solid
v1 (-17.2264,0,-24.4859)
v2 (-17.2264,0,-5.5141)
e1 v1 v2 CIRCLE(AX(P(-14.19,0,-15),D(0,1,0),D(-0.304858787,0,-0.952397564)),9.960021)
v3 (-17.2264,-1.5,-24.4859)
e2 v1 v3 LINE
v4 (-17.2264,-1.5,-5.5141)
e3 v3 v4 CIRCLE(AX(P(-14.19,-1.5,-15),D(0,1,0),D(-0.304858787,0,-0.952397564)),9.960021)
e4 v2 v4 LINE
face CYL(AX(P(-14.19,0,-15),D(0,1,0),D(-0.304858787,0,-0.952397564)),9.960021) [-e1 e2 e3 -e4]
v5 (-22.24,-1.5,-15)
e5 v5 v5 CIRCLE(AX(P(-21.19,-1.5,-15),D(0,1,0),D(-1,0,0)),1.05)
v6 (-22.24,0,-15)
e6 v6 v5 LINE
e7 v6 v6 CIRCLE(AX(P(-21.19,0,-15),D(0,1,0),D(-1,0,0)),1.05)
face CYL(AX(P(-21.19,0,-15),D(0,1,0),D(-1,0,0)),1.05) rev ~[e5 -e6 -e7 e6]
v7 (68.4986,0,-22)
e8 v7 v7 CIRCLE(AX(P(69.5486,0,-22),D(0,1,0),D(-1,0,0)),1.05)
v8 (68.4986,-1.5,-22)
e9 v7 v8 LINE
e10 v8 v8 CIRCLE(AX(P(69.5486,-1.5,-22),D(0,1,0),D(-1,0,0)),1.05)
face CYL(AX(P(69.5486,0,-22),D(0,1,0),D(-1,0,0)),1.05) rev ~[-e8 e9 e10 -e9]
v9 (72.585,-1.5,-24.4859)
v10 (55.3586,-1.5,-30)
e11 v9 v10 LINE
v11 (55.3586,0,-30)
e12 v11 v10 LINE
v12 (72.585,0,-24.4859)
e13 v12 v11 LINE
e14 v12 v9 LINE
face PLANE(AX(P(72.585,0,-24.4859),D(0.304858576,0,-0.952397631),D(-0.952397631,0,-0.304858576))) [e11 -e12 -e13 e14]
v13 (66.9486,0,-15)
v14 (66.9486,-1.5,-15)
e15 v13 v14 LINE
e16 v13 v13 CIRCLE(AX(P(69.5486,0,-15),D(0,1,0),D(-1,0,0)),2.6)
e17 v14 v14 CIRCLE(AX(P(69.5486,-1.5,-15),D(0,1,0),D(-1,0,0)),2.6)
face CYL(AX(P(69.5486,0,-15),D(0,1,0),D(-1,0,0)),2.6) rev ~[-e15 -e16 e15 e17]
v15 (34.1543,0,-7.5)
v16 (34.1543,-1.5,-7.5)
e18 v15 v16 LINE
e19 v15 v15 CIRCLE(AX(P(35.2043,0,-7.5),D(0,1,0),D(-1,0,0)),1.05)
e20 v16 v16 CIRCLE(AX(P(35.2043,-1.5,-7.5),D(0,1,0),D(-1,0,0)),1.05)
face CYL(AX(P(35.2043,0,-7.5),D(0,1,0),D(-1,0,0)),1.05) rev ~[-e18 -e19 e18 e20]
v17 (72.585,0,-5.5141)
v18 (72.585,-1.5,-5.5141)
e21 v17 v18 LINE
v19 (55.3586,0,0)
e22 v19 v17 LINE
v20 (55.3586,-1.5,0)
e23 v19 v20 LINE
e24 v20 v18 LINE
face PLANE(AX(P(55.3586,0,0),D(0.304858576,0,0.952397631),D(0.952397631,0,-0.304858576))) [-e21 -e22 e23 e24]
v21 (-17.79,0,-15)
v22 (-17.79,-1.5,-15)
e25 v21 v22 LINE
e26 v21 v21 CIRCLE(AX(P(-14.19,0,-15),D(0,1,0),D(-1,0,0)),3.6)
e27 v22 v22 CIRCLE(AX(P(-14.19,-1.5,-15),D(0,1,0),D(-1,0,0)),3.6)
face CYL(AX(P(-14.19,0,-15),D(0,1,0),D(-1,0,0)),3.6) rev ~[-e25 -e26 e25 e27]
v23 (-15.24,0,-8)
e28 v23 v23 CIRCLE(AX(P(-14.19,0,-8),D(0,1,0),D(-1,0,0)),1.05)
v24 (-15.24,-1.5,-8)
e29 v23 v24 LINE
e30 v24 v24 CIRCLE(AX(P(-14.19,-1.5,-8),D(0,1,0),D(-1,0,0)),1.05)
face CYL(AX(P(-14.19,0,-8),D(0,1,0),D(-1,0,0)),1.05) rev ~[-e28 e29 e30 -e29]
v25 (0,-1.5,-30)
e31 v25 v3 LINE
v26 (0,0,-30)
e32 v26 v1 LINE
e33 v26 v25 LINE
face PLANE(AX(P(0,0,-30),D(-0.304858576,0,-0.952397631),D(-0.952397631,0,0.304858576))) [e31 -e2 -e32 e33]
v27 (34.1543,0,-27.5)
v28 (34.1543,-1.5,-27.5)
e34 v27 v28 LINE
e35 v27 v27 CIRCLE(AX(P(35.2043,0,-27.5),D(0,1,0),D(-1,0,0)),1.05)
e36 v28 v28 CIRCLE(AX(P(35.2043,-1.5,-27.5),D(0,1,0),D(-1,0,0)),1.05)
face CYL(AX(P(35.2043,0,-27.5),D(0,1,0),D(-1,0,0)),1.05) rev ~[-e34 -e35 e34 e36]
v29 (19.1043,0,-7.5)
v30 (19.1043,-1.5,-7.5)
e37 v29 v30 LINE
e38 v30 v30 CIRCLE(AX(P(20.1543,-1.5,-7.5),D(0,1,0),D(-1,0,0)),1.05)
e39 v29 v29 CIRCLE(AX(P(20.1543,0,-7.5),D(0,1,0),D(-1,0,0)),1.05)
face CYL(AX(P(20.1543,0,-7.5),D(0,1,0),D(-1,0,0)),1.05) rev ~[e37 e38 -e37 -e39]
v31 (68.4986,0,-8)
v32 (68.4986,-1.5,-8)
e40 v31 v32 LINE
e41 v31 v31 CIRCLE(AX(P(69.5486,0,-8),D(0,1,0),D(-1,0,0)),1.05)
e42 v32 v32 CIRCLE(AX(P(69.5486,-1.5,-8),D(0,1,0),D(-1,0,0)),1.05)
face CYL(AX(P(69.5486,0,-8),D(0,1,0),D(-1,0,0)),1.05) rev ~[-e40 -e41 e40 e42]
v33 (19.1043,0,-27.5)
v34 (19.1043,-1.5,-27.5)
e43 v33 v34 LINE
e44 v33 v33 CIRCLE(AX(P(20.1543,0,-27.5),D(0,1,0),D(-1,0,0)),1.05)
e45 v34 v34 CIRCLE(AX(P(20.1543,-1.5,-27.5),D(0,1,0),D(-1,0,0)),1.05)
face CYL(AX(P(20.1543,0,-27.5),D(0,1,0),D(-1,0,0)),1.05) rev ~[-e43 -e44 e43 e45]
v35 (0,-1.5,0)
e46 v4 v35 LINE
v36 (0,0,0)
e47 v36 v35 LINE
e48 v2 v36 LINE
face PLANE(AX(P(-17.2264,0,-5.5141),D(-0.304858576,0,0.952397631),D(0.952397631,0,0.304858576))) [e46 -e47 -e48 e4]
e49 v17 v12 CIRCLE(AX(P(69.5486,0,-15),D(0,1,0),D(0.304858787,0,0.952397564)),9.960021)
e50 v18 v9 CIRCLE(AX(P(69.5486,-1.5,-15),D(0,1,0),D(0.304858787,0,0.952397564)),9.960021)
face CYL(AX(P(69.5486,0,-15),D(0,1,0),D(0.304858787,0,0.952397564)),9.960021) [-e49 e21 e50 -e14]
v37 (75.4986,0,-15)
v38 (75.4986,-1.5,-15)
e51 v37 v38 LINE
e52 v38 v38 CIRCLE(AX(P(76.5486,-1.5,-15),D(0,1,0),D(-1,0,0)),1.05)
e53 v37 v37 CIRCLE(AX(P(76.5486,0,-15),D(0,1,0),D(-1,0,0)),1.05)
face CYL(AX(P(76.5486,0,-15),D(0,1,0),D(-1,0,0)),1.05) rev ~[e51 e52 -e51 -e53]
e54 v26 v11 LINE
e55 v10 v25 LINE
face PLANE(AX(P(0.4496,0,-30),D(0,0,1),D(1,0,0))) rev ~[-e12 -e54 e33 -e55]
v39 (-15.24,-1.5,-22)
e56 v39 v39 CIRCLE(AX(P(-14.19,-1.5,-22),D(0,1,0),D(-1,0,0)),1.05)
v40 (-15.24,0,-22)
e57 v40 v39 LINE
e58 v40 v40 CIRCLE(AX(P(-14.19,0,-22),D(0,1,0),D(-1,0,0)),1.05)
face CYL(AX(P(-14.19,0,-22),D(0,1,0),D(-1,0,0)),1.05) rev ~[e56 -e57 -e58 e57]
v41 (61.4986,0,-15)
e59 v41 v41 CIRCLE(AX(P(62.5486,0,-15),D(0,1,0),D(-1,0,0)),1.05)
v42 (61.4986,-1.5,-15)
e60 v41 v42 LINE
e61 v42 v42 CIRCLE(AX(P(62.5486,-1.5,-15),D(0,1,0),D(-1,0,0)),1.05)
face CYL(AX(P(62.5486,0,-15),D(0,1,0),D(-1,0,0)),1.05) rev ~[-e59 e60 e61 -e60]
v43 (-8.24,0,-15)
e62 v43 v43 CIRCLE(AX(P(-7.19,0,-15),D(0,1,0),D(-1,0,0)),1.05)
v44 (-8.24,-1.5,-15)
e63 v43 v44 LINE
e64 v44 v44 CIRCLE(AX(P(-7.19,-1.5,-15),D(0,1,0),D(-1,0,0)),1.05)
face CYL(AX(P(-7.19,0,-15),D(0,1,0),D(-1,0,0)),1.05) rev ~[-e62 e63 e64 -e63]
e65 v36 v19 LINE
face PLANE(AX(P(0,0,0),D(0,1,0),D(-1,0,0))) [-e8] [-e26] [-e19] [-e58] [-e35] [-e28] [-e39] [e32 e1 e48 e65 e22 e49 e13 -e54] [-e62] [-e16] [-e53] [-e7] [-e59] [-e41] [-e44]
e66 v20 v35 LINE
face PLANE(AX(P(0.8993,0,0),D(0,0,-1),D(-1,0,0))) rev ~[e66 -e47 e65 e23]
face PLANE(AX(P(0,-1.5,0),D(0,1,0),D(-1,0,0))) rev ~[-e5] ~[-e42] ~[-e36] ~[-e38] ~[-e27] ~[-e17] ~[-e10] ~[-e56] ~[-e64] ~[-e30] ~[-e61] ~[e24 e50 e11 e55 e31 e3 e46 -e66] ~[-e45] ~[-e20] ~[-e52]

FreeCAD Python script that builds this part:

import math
import FreeCAD as App
import Part
import Sketcher
from FreeCAD import Vector
Q = App.Units.Quantity

doc = App.newDocument("Part")
body = doc.addObject("PartDesign::Body", "Body")

sketch1 = doc.addObject("Sketcher::SketchObject", "Sketch")
body.addObject(sketch1)
sketch1.AttachmentSupport = (doc.XZ_Plane, [""])
sketch1.MapMode = "FlatFace"
sketch1.addGeometry(Part.LineSegment(Vector(0, -30, 0), Vector(-17.2, -24.5, 0)), False)
sketch1.addGeometry(Part.ArcOfCircle(Part.Circle(Vector(-14.2, -15, 0), Vector(0, 0, 1), 10), math.radians(108), math.radians(252)), False)
sketch1.addGeometry(Part.LineSegment(Vector(-17.2, -5.5, 0), Vector(0, 0, 0)), False)
sketch1.addGeometry(Part.LineSegment(Vector(0, 0, 0), Vector(55.4, 0, 0)), False)
sketch1.addGeometry(Part.LineSegment(Vector(55.4, 0, 0), Vector(72.6, -5.5, 0)), False)
sketch1.addGeometry(Part.ArcOfCircle(Part.Circle(Vector(69.5, -15, 0), Vector(0, 0, 1), 10), math.radians(-72), math.radians(72)), False)
sketch1.addGeometry(Part.LineSegment(Vector(72.6, -24.5, 0), Vector(55.4, -30, 0)), False)
sketch1.addGeometry(Part.LineSegment(Vector(55.4, -30, 0), Vector(0, -30, 0)), False)
sketch1.addGeometry(Part.Circle(Vector(20.2, -7.5, 0), Vector(0, 0, 1), 1.1), False)
sketch1.addGeometry(Part.Circle(Vector(35.2, -27.5, 0), Vector(0, 0, 1), 1.1), False)
sketch1.addGeometry(Part.Circle(Vector(20.2, -27.5, 0), Vector(0, 0, 1), 1.1), False)
sketch1.addGeometry(Part.Circle(Vector(35.2, -7.5, 0), Vector(0, 0, 1), 1.1), False)
sketch1.addGeometry(Part.Circle(Vector(-14.2, -8, 0), Vector(0, 0, 1), 1.1), False)
sketch1.addGeometry(Part.Circle(Vector(-14.2, -22, 0), Vector(0, 0, 1), 1.1), False)
sketch1.addGeometry(Part.Circle(Vector(-7.2, -15, 0), Vector(0, 0, 1), 1.1), False)
sketch1.addGeometry(Part.Circle(Vector(-14.2, -15, 0), Vector(0, 0, 1), 3.6), False)
sketch1.addGeometry(Part.Circle(Vector(-21.2, -15, 0), Vector(0, 0, 1), 1.1), False)
sketch1.addGeometry(Part.Circle(Vector(69.5, -8, 0), Vector(0, 0, 1), 1.1), False)
sketch1.addGeometry(Part.Circle(Vector(69.5, -22, 0), Vector(0, 0, 1), 1.1), False)
sketch1.addGeometry(Part.Circle(Vector(76.5, -15, 0), Vector(0, 0, 1), 1.1), False)
sketch1.addGeometry(Part.Circle(Vector(69.5, -15, 0), Vector(0, 0, 1), 2.6), False)
sketch1.addGeometry(Part.Circle(Vector(62.5, -15, 0), Vector(0, 0, 1), 1.1), False)
sketch1.addConstraint(Sketcher.Constraint("Tangent", 0, 2, 1, 2))
sketch1.addConstraint(Sketcher.Constraint("Tangent", 1, 1, 2, 1))
sketch1.addConstraint(Sketcher.Constraint("Coincident", 2, 2, 3, 1))
sketch1.addConstraint(Sketcher.Constraint("Coincident", 3, 2, 4, 1))
sketch1.addConstraint(Sketcher.Constraint("Tangent", 4, 2, 5, 2))
sketch1.addConstraint(Sketcher.Constraint("Tangent", 5, 1, 6, 1))
sketch1.addConstraint(Sketcher.Constraint("Coincident", 6, 2, 7, 1))
sketch1.addConstraint(Sketcher.Constraint("Coincident", 7, 2, 0, 1))
sketch1.addConstraint(Sketcher.Constraint("Horizontal", 3))
sketch1.addConstraint(Sketcher.Constraint("Horizontal", 7))
sketch1.addConstraint(Sketcher.Constraint("Coincident", 2, 2, -1, 1))
sketch1.addConstraint(Sketcher.Constraint("Coincident", 15, 3, 1, 3))
sketch1.addConstraint(Sketcher.Constraint("Coincident", 20, 3, 5, 3))
sketch1.addConstraint(Sketcher.Constraint("Equal", 1, 5))
sketch1.addConstraint(Sketcher.Constraint("Equal", 8, 9))
sketch1.addConstraint(Sketcher.Constraint("Equal", 9, 10))
sketch1.addConstraint(Sketcher.Constraint("Equal", 10, 11))
sketch1.addConstraint(Sketcher.Constraint("Equal", 11, 12))
sketch1.addConstraint(Sketcher.Constraint("Equal", 12, 13))
sketch1.addConstraint(Sketcher.Constraint("Equal", 13, 14))
sketch1.addConstraint(Sketcher.Constraint("Equal", 14, 16))
sketch1.addConstraint(Sketcher.Constraint("Equal", 16, 17))
sketch1.addConstraint(Sketcher.Constraint("Equal", 17, 18))
sketch1.addConstraint(Sketcher.Constraint("Equal", 18, 19))
sketch1.addConstraint(Sketcher.Constraint("Equal", 19, 21))
sketch1.addConstraint(Sketcher.Constraint("PointOnObject", 7, 2, -2))
sketch1.addConstraint(Sketcher.Constraint("Parallel", 0, 4))
sketch1.addConstraint(Sketcher.Constraint("Parallel", 2, 6))
sketch1.addConstraint(Sketcher.Constraint("Horizontal", 1, 3, 5, 3))
sketch1.addConstraint(Sketcher.Constraint("Horizontal", 9, 3, 10, 3))
sketch1.addConstraint(Sketcher.Constraint("Horizontal", 8, 3, 11, 3))
sketch1.addConstraint(Sketcher.Constraint("Horizontal", 5, 3, 14, 3))
sketch1.addConstraint(Sketcher.Constraint("Horizontal", 15, 3, 16, 3))
sketch1.addConstraint(Sketcher.Constraint("Horizontal", 12, 3, 17, 3))
sketch1.addConstraint(Sketcher.Constraint("Horizontal", 13, 3, 18, 3))
sketch1.addConstraint(Sketcher.Constraint("Horizontal", 16, 3, 19, 3))
sketch1.addConstraint(Sketcher.Constraint("Horizontal", 20, 3, 21, 3))
sketch1.addConstraint(Sketcher.Constraint("Horizontal", 1, 1, 4, 2))
sketch1.addConstraint(Sketcher.Constraint("Vertical", 8, 3, 10, 3))
sketch1.addConstraint(Sketcher.Constraint("Vertical", 9, 3, 11, 3))
sketch1.addConstraint(Sketcher.Constraint("Vertical", 1, 3, 12, 3))
sketch1.addConstraint(Sketcher.Constraint("Vertical", 12, 3, 13, 3))
sketch1.addConstraint(Sketcher.Constraint("Vertical", 5, 3, 17, 3))
sketch1.addConstraint(Sketcher.Constraint("Vertical", 17, 3, 18, 3))
sketch1.addConstraint(Sketcher.Constraint("Diameter", 8, Q("2.1 mm")))
sketch1.addConstraint(Sketcher.Constraint("Diameter", 15, Q("7.2 mm")))
sketch1.addConstraint(Sketcher.Constraint("Diameter", 20, Q("5.2 mm")))
sketch1.addConstraint(Sketcher.Constraint("Radius", 1, Q("9.96 mm")))
sketch1.addConstraint(Sketcher.Constraint("DistanceY", 1, 3, -1, 1, Q("15 mm")))
sketch1.addConstraint(Sketcher.Constraint("DistanceY", 12, 3, -1, 1, Q("8 mm")))
sketch1.addConstraint(Sketcher.Constraint("DistanceY", 13, 3, -1, 1, Q("22 mm")))
sketch1.addConstraint(Sketcher.Constraint("DistanceY", 9, 3, 8, 3, Q("20 mm")))
sketch1.addConstraint(Sketcher.Constraint("DistanceX", 1, 3, 14, 3, Q("7 mm")))
sketch1.addConstraint(Sketcher.Constraint("DistanceX", 16, 3, 1, 3, Q("7 mm")))
sketch1.addConstraint(Sketcher.Constraint("DistanceX", 5, 3, 19, 3, Q("7 mm")))
sketch1.addConstraint(Sketcher.Constraint("DistanceX", 21, 3, 5, 3, Q("7 mm")))
sketch1.addConstraint(Sketcher.Constraint("DistanceY", 8, 3, -1, 1, Q("7.5 mm")))
sketch1.addConstraint(Sketcher.Constraint("Angle", 0, Q("162.2503 deg")))
sketch1.addConstraint(Sketcher.Constraint("DistanceX", 8, 3, 9, 3, Q("15.05 mm")))
sketch1.addConstraint(Sketcher.Constraint("DistanceX", 3, 1, 3, 2, Q("55.3586 mm")))
sketch1.addConstraint(Sketcher.Constraint("DistanceX", -1, 1, 8, 3, Q("20.1543 mm")))
pad1 = doc.addObject("PartDesign::Pad", "Pad")
body.addObject(pad1)
pad1.Profile = sketch1
pad1.Length = 1.5

doc.recompute()
